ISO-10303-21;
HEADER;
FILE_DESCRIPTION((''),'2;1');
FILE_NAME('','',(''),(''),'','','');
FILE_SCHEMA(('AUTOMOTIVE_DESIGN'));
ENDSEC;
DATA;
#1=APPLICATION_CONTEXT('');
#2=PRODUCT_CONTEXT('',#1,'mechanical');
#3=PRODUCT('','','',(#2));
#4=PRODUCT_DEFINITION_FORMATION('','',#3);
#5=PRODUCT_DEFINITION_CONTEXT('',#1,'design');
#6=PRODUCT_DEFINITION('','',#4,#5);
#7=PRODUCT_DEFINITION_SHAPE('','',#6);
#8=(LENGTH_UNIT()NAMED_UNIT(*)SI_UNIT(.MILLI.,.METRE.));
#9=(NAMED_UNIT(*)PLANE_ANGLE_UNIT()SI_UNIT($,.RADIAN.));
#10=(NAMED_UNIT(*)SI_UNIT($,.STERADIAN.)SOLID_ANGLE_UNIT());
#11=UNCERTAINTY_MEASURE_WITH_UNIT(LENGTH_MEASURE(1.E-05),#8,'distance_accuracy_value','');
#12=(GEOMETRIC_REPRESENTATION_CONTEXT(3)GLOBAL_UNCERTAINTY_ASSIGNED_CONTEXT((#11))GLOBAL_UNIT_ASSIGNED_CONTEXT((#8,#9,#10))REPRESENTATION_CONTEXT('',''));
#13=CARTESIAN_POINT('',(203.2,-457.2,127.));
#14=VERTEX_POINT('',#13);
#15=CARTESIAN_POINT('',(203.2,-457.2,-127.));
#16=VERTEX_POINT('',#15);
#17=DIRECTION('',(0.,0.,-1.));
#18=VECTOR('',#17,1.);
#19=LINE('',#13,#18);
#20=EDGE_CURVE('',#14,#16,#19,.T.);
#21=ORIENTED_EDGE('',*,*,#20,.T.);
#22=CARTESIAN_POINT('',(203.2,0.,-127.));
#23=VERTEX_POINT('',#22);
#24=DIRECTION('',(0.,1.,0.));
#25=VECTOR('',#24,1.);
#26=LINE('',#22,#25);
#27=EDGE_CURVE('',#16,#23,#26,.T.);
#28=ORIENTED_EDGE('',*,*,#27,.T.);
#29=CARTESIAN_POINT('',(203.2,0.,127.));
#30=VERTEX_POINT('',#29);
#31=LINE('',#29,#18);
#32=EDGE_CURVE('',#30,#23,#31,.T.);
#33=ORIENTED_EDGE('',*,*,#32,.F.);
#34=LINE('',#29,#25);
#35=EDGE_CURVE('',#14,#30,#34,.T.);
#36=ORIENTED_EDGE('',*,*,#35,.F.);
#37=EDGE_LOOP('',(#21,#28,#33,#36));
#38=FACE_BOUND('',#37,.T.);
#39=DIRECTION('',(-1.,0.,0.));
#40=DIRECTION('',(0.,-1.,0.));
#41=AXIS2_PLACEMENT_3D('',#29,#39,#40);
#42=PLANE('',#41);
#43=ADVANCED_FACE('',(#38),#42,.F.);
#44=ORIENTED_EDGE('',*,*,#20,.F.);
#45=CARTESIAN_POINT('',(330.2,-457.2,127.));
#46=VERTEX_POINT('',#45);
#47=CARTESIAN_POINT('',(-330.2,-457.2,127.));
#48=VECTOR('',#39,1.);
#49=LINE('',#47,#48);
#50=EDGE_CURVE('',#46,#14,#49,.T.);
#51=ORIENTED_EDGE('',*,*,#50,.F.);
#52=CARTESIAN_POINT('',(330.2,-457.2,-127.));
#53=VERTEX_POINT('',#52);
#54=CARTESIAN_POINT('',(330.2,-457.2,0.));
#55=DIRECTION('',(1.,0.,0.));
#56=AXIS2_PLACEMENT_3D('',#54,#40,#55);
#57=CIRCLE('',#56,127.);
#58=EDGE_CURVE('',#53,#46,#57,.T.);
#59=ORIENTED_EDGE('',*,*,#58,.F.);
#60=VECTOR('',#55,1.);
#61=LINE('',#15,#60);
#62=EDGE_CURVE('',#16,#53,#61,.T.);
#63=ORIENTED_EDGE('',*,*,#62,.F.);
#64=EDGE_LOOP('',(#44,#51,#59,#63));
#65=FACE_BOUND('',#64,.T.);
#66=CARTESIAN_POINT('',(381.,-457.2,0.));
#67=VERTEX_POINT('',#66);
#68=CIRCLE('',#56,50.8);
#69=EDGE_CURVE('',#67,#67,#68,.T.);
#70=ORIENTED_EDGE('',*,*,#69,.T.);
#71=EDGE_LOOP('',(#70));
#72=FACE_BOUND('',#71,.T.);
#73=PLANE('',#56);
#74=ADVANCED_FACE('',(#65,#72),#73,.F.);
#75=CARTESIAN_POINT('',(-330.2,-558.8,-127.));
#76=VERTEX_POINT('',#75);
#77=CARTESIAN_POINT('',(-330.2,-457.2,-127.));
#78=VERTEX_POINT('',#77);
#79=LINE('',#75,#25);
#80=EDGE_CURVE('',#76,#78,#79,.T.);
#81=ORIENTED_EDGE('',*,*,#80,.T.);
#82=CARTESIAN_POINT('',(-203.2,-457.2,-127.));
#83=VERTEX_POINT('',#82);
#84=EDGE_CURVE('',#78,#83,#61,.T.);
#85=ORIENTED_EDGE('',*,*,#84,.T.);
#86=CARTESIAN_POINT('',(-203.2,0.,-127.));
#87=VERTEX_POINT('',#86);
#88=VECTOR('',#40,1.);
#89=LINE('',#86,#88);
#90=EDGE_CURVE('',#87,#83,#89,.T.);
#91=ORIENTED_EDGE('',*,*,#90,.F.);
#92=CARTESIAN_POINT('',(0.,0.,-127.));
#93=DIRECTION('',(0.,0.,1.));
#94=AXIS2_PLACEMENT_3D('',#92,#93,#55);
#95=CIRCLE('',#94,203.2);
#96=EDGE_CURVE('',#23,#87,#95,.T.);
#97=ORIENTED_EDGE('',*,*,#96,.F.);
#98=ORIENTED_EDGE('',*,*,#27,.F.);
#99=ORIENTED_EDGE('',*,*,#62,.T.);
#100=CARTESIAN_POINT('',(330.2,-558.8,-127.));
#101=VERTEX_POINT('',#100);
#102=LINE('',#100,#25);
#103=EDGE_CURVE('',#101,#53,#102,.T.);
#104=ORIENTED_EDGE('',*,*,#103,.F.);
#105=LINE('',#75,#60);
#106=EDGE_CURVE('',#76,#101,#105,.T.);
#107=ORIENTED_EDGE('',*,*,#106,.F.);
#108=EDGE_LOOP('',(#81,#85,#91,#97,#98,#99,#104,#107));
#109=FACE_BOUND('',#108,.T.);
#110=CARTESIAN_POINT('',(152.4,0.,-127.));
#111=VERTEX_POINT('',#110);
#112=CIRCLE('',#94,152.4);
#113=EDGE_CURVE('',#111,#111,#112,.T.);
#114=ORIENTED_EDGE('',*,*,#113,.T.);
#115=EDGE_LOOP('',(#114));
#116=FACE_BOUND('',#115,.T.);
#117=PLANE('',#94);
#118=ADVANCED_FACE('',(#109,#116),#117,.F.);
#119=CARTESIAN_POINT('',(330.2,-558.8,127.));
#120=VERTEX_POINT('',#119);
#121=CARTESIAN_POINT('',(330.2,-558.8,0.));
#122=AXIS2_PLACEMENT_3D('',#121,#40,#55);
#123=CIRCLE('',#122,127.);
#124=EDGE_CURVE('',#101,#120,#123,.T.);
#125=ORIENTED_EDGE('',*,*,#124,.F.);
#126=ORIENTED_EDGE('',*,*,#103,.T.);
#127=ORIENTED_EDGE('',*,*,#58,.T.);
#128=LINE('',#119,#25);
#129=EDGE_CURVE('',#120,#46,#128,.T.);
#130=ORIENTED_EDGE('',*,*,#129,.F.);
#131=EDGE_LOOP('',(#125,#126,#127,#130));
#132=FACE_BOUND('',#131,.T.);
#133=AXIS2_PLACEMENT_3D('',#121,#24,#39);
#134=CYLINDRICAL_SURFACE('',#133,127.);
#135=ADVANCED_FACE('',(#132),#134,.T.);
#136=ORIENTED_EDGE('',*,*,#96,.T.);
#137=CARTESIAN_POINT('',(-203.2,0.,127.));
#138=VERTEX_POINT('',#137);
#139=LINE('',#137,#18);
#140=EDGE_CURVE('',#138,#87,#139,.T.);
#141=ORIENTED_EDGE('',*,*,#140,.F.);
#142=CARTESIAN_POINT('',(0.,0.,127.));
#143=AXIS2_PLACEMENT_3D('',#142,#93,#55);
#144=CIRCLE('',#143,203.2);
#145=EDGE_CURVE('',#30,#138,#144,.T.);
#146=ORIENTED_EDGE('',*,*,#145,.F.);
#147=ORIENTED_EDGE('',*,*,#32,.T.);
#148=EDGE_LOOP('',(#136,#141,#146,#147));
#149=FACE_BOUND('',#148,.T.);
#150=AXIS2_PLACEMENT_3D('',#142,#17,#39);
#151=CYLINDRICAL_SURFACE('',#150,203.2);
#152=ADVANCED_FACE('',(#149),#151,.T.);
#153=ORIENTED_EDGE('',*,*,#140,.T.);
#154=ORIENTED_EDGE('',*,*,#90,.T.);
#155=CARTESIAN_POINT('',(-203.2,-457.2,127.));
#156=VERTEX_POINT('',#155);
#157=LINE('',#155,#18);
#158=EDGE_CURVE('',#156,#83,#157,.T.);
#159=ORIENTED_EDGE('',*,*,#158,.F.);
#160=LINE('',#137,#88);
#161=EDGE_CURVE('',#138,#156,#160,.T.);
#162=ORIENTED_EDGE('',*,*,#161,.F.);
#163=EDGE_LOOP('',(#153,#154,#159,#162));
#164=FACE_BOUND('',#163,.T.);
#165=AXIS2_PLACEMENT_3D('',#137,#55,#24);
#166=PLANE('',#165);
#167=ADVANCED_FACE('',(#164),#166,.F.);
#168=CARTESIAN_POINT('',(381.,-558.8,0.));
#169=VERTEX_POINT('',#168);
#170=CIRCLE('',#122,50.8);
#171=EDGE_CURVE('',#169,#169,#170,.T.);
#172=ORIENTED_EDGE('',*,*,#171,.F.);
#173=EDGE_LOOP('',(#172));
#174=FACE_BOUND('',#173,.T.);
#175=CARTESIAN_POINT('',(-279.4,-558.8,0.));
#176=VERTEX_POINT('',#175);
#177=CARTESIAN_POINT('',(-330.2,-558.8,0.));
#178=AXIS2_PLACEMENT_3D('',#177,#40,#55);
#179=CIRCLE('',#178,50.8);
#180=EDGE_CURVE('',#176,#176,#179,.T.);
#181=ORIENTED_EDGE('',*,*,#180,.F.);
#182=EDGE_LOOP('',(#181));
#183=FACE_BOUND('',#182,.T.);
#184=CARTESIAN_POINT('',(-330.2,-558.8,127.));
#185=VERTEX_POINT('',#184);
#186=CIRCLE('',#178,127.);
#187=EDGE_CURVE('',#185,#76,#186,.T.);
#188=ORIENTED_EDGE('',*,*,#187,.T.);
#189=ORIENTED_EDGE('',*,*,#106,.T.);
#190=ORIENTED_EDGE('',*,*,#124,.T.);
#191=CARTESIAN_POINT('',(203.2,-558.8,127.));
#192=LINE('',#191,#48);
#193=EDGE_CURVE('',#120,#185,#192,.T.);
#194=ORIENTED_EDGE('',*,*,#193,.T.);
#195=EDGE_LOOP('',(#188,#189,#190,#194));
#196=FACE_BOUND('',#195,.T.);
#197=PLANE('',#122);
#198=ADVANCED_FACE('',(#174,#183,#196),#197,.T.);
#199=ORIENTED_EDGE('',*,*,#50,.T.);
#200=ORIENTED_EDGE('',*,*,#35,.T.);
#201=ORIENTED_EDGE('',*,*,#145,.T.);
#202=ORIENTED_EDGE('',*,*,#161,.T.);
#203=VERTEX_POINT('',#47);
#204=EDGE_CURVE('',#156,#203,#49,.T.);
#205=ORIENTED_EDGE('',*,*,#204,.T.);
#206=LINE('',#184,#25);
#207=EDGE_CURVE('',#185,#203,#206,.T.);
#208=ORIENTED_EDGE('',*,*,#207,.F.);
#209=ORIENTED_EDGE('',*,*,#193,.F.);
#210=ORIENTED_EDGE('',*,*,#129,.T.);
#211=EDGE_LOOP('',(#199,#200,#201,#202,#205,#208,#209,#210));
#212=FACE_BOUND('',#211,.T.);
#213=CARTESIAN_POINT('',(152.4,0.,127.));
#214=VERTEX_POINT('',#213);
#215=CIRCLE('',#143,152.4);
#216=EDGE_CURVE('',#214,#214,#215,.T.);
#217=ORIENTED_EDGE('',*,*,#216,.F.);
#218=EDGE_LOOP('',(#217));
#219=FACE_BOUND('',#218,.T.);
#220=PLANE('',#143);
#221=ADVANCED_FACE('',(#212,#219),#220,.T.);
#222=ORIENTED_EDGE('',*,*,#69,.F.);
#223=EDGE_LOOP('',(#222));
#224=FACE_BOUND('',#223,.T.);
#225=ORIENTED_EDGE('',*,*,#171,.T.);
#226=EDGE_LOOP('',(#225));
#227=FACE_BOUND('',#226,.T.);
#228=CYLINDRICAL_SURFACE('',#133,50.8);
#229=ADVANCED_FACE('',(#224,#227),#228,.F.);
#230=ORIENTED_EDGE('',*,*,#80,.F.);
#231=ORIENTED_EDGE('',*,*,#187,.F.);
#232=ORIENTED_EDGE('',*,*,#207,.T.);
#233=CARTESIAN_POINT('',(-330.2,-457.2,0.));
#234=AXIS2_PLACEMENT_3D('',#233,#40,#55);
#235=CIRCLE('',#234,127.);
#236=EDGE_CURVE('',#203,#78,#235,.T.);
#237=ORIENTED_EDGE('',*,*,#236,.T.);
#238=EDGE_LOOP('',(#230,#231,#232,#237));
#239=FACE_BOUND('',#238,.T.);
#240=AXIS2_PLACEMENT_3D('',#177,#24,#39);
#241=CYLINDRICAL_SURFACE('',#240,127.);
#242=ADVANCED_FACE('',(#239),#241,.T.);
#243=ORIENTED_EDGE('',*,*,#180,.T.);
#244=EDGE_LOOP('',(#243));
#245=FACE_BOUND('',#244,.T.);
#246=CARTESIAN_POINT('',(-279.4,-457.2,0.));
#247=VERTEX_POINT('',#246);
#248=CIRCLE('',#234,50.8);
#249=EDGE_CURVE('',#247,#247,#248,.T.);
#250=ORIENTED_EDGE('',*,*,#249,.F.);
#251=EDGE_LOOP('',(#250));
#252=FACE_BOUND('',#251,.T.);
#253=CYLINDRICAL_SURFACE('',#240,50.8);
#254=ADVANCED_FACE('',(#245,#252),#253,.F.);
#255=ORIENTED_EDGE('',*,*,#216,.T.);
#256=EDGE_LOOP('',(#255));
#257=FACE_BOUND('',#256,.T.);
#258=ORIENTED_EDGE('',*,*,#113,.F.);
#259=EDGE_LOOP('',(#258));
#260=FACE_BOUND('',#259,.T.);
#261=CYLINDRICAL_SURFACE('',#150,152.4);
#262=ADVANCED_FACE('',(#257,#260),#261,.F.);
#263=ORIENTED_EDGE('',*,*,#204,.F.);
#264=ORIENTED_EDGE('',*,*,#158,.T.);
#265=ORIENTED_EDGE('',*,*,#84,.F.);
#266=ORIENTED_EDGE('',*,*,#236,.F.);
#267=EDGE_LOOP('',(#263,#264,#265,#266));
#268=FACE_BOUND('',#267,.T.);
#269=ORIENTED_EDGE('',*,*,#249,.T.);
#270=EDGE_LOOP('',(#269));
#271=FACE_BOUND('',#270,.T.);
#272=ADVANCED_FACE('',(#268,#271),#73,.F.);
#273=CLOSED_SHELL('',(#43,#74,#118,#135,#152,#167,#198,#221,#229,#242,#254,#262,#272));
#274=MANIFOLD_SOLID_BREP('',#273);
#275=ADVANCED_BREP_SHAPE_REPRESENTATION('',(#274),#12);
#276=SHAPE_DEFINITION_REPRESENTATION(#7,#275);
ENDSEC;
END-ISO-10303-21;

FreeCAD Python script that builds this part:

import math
import FreeCAD as App
import Part
import Sketcher
Q = App.Units.Quantity

doc = App.newDocument("Part")
body = doc.addObject("PartDesign::Body", "Body")

sketch1 = body.newObject("Sketcher::SketchObject", "Sketch")
sketch1.AttachmentSupport = (doc.getObject("XY_Plane"), [""])
sketch1.MapMode = "FlatFace"
sketch1.addGeometry([
    Part.LineSegment(App.Vector(-203, -457, 0), App.Vector(203, -457, 0)),
    Part.LineSegment(App.Vector(203, -457, 0), App.Vector(203, 0, 0)),
    Part.ArcOfCircle(Part.Circle(App.Vector(0, 0, 0), App.Vector(0, 0, 1), 203), math.radians(0), math.radians(180)),
    Part.LineSegment(App.Vector(-203, 0, 0), App.Vector(-203, -457, 0)),
    Part.Circle(App.Vector(0, 0, 0), App.Vector(0, 0, 1), 152),
], False)
sketch1.addConstraint([
    Sketcher.Constraint("Coincident", 0, 2, 1, 1),
    Sketcher.Constraint("Tangent", 1, 2, 2, 1),
    Sketcher.Constraint("Tangent", 2, 2, 3, 1),
    Sketcher.Constraint("Coincident", 3, 2, 0, 1),
    Sketcher.Constraint("Horizontal", 0),
    Sketcher.Constraint("Vertical", 1),
    Sketcher.Constraint("Vertical", 3),
    Sketcher.Constraint("Coincident", 2, 3, -1, 1),
    Sketcher.Constraint("Coincident", 4, 3, -1, 1),
    Sketcher.Constraint("Diameter", 4, Q("12 in")),
    Sketcher.Constraint("Radius", 2, Q("8 in")),
    Sketcher.Constraint("DistanceY", 1, 1, 1, 2, Q("18 in")),
])
pad1 = body.newObject("PartDesign::Pad", "Pad")
pad1.Profile = sketch1
pad1.Length = Q("10 in")
pad1.Midplane = True

sketch2 = body.newObject("Sketcher::SketchObject", "Sketch001")
sketch2.AttachmentSupport = (doc.getObject("XZ_Plane"), [""])
sketch2.MapMode = "FlatFace"
sketch2.AttachmentOffset = App.Placement(App.Vector(0, 0, 18 * 25.4), App.Rotation())
sketch2.addGeometry([
    Part.ArcOfCircle(Part.Circle(App.Vector(330, 0, 0), App.Vector(0, 0, 1), 127), math.radians(-90), math.radians(90)),
    Part.LineSegment(App.Vector(330, 127, 0), App.Vector(-330, 127, 0)),
    Part.ArcOfCircle(Part.Circle(App.Vector(-330, 0, 0), App.Vector(0, 0, 1), 127), math.radians(90), math.radians(270)),
    Part.LineSegment(App.Vector(-330, -127, 0), App.Vector(330, -127, 0)),
    Part.Circle(App.Vector(-330, 0, 0), App.Vector(0, 0, 1), 51),
    Part.Circle(App.Vector(330, 0, 0), App.Vector(0, 0, 1), 51),
], False)
sketch2.addConstraint([
    Sketcher.Constraint("Tangent", 0, 2, 1, 1),
    Sketcher.Constraint("Tangent", 1, 2, 2, 1),
    Sketcher.Constraint("Tangent", 2, 2, 3, 1),
    Sketcher.Constraint("Tangent", 3, 2, 0, 1),
    Sketcher.Constraint("Horizontal", 1),
    Sketcher.Constraint("Horizontal", 3),
    Sketcher.Constraint("Coincident", 4, 3, 2, 3),
    Sketcher.Constraint("Coincident", 5, 3, 0, 3),
    Sketcher.Constraint("Equal", 4, 5),
    Sketcher.Constraint("Symmetric", 0, 3, 2, 3, -1, 1),
    Sketcher.Constraint("Diameter", 4, Q("4 in")),
    Sketcher.Constraint("Radius", 0, Q("5 in")),
    Sketcher.Constraint("DistanceX", 1, 2, 1, 1, Q("26 in")),
])
pad2 = body.newObject("PartDesign::Pad", "Pad001")
pad2.Profile = sketch2
pad2.Length = Q("4 in")

doc.recompute()
